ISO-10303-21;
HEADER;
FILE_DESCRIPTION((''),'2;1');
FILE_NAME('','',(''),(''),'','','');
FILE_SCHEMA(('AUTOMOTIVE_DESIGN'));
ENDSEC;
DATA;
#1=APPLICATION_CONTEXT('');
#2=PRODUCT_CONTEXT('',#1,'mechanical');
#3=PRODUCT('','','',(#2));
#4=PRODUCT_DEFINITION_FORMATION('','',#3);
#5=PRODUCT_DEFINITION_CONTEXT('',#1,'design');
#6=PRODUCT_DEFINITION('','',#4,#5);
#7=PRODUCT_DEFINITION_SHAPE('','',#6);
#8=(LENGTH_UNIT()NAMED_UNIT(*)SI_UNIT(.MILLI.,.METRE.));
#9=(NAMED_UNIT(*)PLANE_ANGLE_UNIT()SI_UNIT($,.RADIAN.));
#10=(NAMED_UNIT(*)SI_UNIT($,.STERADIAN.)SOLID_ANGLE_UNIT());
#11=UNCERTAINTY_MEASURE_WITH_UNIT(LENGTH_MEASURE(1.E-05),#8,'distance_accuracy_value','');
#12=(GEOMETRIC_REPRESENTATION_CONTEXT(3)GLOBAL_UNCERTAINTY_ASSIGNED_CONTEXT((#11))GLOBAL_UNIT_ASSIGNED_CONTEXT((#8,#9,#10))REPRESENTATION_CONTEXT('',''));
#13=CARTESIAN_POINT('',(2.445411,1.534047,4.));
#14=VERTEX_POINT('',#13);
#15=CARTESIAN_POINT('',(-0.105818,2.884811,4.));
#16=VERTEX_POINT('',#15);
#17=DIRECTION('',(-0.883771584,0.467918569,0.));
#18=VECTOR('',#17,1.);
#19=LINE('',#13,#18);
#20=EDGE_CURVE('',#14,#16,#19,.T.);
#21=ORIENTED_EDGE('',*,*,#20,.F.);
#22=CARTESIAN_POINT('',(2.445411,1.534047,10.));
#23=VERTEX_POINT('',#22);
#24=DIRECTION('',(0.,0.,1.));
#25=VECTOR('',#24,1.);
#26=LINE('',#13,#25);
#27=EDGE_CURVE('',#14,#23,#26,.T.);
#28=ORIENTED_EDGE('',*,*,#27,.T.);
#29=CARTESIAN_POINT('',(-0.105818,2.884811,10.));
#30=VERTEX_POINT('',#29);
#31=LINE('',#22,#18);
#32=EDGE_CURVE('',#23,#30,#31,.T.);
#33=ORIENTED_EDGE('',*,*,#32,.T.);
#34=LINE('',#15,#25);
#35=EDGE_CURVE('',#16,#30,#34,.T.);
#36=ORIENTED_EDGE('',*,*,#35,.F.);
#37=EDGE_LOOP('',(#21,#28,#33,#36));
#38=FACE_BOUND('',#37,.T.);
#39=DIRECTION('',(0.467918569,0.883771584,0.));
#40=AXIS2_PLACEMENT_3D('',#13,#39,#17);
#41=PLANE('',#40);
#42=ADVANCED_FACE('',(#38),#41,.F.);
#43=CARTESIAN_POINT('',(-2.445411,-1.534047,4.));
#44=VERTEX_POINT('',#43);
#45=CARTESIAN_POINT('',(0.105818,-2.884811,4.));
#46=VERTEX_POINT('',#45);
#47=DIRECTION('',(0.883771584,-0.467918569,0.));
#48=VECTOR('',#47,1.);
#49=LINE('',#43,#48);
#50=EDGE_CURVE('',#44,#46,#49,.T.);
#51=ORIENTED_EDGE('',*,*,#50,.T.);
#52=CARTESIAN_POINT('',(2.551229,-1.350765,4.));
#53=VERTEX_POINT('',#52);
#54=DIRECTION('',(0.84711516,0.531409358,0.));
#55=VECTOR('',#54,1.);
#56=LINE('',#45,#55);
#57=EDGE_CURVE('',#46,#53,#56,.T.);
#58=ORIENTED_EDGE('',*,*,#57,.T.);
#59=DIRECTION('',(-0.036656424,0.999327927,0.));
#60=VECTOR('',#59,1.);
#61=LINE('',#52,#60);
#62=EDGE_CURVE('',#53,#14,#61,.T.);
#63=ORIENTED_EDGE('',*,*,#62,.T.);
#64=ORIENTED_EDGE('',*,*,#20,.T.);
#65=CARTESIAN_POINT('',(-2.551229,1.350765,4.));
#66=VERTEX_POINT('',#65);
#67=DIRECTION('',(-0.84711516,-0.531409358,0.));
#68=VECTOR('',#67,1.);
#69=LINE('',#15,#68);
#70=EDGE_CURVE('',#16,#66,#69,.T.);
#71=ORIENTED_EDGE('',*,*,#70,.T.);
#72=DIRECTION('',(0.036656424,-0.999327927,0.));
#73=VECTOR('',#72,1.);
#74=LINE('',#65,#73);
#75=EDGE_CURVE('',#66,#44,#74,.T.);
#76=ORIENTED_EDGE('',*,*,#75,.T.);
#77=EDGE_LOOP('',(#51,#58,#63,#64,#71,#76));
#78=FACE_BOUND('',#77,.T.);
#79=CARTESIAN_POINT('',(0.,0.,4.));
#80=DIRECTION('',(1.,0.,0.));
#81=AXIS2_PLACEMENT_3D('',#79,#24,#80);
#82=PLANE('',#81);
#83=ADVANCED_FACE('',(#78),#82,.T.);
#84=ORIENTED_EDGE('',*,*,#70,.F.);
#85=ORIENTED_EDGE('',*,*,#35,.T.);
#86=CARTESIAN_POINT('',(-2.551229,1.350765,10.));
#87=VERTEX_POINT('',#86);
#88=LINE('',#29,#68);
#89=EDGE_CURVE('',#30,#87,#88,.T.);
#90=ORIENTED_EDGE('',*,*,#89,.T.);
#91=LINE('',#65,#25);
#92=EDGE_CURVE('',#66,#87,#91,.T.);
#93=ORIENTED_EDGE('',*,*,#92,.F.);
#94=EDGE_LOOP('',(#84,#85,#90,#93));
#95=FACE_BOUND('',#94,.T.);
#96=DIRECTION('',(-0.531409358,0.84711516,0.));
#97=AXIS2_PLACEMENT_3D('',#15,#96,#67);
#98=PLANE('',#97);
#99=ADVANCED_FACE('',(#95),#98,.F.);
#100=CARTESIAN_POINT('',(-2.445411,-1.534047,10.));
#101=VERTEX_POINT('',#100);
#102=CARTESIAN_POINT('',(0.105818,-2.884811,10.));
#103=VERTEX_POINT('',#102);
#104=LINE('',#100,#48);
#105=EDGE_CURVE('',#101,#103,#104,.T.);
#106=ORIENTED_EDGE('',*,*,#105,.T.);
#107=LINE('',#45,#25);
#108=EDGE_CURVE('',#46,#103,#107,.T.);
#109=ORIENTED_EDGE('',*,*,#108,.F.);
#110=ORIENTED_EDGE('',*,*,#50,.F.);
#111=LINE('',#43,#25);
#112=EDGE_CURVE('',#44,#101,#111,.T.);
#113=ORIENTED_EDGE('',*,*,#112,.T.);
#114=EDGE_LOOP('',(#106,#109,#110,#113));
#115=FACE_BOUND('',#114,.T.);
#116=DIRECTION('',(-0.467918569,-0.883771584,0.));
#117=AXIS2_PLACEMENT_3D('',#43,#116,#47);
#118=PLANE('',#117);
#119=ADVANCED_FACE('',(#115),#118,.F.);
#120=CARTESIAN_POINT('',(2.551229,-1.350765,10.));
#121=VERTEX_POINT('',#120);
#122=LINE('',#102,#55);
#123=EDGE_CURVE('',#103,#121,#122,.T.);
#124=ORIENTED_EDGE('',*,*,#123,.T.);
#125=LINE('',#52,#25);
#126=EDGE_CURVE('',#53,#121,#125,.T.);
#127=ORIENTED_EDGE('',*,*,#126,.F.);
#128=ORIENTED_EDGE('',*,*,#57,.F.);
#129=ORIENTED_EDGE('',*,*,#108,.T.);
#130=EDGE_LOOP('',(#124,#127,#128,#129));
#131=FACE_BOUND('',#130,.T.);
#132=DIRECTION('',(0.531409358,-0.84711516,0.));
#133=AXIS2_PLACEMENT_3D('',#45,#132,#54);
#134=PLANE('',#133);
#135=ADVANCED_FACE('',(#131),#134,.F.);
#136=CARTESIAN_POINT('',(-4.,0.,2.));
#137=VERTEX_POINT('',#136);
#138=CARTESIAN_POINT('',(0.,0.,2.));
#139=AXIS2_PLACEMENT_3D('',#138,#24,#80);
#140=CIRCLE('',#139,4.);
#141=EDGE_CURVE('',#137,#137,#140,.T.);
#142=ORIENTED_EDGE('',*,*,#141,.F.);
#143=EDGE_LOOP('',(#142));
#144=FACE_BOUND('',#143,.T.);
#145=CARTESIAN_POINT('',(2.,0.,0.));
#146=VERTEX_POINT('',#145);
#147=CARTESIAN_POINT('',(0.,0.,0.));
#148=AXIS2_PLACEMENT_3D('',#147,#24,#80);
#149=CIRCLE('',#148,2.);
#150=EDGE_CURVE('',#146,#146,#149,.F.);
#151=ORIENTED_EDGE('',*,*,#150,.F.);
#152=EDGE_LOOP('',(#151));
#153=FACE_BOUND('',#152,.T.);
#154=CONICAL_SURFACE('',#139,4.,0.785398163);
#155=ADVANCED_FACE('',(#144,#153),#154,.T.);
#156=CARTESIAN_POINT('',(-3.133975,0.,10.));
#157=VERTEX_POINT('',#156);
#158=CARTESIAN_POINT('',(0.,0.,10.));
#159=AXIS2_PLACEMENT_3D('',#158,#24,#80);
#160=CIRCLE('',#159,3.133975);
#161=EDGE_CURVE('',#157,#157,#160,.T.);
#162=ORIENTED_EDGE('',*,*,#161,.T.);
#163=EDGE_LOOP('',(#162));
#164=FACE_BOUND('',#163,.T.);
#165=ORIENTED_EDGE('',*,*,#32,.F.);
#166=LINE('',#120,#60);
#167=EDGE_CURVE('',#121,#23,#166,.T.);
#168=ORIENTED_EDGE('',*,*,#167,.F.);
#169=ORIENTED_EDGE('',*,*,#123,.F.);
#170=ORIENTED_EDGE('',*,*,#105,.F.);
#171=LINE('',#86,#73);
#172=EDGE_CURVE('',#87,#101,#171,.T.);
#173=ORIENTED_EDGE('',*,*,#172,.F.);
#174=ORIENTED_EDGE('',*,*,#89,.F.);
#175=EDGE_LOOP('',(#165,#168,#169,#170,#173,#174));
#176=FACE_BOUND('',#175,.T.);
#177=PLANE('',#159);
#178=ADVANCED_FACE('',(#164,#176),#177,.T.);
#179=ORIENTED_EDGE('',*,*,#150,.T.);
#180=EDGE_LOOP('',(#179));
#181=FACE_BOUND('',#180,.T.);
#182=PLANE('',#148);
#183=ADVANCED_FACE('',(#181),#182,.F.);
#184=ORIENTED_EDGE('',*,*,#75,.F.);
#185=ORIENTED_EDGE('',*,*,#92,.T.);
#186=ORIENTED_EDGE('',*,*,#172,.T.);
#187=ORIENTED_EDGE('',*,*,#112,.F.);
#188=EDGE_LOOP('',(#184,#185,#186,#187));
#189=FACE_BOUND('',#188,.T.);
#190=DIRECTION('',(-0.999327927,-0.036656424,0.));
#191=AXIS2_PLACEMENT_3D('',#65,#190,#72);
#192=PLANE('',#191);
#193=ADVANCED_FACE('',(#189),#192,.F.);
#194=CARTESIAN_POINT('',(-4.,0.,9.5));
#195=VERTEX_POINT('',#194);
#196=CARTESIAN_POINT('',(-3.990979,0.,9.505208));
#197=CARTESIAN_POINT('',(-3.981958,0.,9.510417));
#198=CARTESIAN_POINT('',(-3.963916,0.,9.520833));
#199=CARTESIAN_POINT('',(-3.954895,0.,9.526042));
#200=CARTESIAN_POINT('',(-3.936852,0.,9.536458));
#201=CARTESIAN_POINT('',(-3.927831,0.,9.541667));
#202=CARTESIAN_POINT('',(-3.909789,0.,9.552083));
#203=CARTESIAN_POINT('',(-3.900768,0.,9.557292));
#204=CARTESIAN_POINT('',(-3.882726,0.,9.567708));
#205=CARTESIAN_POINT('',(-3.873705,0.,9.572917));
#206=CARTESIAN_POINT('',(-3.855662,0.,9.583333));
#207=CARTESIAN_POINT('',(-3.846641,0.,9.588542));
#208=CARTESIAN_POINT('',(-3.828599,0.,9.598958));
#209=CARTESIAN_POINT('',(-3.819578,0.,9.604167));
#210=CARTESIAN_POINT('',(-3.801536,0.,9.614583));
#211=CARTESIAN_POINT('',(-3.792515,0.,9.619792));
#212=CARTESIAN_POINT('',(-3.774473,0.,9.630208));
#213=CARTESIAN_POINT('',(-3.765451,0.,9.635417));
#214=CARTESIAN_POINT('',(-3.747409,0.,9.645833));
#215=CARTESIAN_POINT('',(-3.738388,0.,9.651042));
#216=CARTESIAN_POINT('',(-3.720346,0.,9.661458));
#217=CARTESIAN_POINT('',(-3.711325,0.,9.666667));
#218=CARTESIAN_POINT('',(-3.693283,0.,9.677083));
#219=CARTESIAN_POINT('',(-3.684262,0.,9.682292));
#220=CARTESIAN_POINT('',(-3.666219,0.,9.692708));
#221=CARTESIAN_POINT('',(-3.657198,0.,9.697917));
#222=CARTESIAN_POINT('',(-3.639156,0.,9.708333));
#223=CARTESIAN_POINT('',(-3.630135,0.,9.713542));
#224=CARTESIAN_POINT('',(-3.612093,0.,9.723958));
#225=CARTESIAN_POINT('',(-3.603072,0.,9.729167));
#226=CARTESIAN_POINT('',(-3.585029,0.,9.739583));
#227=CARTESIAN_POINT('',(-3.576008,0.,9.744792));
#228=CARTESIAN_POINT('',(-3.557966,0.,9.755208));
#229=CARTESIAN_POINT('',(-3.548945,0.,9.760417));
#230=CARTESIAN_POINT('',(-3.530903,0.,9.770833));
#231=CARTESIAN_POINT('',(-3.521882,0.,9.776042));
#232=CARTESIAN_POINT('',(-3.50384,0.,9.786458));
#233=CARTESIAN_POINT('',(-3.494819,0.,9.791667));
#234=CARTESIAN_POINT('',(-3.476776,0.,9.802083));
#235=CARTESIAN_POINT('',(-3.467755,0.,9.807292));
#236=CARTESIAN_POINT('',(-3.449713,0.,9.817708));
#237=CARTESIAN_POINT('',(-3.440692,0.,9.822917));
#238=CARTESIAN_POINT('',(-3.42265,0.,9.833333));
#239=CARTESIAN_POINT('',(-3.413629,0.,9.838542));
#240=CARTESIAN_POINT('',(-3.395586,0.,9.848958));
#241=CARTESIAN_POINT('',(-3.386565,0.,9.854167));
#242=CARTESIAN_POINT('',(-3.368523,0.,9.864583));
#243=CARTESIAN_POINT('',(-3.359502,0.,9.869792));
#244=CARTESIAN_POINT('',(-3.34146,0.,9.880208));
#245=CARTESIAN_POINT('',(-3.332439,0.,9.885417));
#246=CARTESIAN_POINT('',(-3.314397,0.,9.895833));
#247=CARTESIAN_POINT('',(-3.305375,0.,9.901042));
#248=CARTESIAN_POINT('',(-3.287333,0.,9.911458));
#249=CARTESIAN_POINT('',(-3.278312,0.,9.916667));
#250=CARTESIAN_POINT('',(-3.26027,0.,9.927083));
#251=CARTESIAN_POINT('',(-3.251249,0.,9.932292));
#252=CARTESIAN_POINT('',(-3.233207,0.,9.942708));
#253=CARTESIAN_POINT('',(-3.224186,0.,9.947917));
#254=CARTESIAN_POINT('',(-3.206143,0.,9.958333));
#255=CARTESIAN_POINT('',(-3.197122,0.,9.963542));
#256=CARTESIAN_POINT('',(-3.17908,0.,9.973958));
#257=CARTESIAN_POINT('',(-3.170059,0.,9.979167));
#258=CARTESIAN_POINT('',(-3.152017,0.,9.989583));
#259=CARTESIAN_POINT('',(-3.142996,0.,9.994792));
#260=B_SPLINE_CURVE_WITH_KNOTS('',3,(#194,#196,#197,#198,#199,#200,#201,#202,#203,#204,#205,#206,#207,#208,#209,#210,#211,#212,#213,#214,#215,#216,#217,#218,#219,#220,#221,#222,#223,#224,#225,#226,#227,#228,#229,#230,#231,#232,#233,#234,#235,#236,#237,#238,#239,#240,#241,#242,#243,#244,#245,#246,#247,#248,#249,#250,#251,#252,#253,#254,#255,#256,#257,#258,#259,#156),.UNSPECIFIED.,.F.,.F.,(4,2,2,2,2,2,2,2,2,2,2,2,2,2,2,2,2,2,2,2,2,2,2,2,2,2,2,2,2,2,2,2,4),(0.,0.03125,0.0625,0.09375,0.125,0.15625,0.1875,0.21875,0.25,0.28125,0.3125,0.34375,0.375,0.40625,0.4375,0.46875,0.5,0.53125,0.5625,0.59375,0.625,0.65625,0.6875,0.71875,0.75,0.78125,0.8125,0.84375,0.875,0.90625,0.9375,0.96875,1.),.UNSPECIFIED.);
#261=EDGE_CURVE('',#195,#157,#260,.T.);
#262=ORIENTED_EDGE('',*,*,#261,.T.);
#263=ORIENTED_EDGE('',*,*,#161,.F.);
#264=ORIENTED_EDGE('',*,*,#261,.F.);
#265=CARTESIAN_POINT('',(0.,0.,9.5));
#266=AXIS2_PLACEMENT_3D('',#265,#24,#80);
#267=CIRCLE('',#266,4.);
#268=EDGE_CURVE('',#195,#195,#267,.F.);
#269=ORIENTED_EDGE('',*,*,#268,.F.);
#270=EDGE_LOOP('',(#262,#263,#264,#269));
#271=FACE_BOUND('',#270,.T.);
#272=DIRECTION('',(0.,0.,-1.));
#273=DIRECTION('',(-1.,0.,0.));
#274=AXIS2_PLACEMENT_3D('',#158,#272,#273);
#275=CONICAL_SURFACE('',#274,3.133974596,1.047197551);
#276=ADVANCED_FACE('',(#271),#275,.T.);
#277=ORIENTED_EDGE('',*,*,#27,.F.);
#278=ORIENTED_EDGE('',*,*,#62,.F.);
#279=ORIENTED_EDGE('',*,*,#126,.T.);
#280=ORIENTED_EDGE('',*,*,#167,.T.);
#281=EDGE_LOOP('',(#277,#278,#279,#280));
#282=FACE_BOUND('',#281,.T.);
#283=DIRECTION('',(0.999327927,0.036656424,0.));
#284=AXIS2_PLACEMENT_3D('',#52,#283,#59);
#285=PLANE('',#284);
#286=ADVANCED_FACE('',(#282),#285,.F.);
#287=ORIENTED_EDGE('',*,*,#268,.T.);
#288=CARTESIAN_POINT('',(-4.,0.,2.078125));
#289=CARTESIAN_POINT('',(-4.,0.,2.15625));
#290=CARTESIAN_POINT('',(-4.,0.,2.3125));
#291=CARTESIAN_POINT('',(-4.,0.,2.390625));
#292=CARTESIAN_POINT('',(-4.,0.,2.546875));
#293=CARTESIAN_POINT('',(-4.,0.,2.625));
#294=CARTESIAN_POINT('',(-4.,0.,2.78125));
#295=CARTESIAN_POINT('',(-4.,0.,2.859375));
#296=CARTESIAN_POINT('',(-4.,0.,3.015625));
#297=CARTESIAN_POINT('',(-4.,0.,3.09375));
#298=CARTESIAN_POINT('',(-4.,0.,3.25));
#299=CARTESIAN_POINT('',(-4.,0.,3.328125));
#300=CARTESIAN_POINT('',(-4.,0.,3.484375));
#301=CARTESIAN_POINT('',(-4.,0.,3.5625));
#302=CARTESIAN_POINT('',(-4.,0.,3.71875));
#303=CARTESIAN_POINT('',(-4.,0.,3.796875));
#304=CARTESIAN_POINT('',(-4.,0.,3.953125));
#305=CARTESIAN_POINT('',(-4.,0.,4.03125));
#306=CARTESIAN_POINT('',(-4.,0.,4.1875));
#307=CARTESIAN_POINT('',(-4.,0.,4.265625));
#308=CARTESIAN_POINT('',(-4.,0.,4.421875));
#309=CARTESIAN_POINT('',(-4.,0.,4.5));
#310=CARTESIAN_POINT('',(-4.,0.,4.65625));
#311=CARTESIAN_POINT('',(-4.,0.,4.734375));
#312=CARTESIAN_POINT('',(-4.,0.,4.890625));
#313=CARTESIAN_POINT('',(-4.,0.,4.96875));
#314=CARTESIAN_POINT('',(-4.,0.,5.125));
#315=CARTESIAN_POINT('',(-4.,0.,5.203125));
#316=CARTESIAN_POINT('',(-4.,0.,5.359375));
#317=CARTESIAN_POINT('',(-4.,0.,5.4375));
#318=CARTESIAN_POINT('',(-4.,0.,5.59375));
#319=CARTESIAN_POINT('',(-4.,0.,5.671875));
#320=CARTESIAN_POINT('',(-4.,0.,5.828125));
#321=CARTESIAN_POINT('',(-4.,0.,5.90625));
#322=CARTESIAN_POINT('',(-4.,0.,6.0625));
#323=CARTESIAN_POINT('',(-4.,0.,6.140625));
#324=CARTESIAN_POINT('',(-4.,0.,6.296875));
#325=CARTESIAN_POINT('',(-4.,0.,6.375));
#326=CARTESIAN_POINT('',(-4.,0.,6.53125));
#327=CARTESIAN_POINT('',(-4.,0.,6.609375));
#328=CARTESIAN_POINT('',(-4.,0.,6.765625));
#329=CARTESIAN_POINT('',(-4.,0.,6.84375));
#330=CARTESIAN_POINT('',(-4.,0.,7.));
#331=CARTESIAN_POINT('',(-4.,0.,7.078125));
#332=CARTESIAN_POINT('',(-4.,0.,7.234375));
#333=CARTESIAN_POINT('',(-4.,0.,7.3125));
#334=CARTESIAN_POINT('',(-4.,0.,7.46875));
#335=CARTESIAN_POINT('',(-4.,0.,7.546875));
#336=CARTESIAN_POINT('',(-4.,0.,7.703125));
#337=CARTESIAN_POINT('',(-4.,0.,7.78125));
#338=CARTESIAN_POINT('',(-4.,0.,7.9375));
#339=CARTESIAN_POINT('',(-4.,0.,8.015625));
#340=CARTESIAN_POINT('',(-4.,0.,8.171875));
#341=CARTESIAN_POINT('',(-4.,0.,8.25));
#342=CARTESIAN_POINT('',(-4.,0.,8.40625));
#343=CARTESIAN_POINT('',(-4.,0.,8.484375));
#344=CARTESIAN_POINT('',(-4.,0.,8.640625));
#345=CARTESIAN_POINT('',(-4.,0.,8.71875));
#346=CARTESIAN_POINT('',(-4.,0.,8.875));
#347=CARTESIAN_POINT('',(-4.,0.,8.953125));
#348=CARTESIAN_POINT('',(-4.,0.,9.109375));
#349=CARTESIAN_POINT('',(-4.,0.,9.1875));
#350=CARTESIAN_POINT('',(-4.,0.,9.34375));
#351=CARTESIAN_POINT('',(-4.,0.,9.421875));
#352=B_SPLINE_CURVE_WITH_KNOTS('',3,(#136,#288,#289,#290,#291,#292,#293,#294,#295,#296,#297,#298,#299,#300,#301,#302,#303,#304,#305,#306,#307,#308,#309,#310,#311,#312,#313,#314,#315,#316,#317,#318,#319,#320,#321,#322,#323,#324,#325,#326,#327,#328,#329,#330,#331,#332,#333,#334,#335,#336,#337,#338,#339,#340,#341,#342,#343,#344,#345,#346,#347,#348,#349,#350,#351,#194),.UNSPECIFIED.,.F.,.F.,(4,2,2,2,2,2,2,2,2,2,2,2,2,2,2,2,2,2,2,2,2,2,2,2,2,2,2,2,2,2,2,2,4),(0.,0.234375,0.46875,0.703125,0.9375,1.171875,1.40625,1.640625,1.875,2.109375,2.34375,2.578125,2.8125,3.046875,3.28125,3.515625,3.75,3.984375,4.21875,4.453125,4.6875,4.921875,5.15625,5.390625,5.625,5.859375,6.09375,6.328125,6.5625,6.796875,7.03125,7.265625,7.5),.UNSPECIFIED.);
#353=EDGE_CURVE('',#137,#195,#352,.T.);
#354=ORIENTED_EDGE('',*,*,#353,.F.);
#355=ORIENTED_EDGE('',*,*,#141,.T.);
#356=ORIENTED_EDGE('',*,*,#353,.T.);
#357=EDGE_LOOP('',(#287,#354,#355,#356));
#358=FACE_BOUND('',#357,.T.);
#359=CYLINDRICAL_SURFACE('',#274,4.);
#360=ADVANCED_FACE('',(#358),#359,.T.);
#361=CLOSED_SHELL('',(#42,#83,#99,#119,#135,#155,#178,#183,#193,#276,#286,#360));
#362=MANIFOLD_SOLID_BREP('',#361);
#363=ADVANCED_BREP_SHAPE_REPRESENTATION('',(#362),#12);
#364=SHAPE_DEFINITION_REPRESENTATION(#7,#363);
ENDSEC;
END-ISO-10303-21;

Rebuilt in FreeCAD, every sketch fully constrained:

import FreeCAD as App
import Part
import Sketcher

V = App.Vector
Q = App.Units.Quantity


def edges_at(feature, points):
    """Names of the edges that pass closest to the given points."""
    edges = feature.Shape.Edges
    near = lambda p: min(range(len(edges)), key=lambda i: edges[i].distToShape(Part.Vertex(*p))[0])
    return sorted({f"Edge{near(p) + 1}" for p in points})

doc = App.newDocument("Part")
body = doc.addObject("PartDesign::Body", "Body")

# Sketch on XY plane
sketch1 = body.newObject("Sketcher::SketchObject", "Sketch")
sketch1.AttachmentSupport = (doc.getObject("XY_Plane"), [""])
sketch1.MapMode = "FlatFace"
sketch1.addGeometry(Part.Circle(V(0, 0, 0), V(0, 0, 1), 4), False)
sketch1.addConstraint([
    Sketcher.Constraint("Coincident", 0, 3, -1, 1),
    Sketcher.Constraint("Diameter", 0, Q("8 mm")),
])
pad1 = body.newObject("PartDesign::Pad", "Pad")
pad1.Profile = sketch1
pad1.Length = 10

# Sketch on XY plane
sketch2 = body.newObject("Sketcher::SketchObject", "Sketch001")
sketch2.AttachmentSupport = (doc.getObject("XY_Plane"), [""])
sketch2.MapMode = "FlatFace"
sketch2.AttachmentOffset = App.Placement(V(0, 0, 10), App.Rotation())
sketch2.addGeometry([
    Part.LineSegment(V(-0.105818, 2.884811, 0), V(-2.551229, 1.350765, 0)),  # 0
    Part.LineSegment(V(-2.551229, 1.350765, 0), V(-2.445411, -1.534047, 0)),  # 1
    Part.LineSegment(V(-2.445411, -1.534047, 0), V(0.105818, -2.884811, 0)),  # 2
    Part.LineSegment(V(0.105818, -2.884811, 0), V(2.551229, -1.350765, 0)),  # 3
    Part.LineSegment(V(2.551229, -1.350765, 0), V(2.445411, 1.534047, 0)),  # 4
    Part.LineSegment(V(2.445411, 1.534047, 0), V(-0.105818, 2.884811, 0)),  # 5
], False)
sketch2.addConstraint([
    Sketcher.Constraint("Coincident", 0, 2, 1, 1),
    Sketcher.Constraint("Coincident", 1, 2, 2, 1),
    Sketcher.Constraint("Coincident", 2, 2, 3, 1),
    Sketcher.Constraint("Coincident", 3, 2, 4, 1),
    Sketcher.Constraint("Coincident", 4, 2, 5, 1),
    Sketcher.Constraint("Coincident", 5, 2, 0, 1),
    Sketcher.Constraint("Symmetric", 0, 2, 3, 2, -1, 1),
    Sketcher.Constraint("Symmetric", 1, 2, 4, 2, -1, 1),
    Sketcher.Constraint("Symmetric", 2, 2, 5, 2, -1, 1),
    Sketcher.Constraint("Equal", 0, 1),
    Sketcher.Constraint("Equal", 1, 2),
    Sketcher.Constraint("Distance", 0, Q("2.886751 mm")),
    Sketcher.Constraint("DistanceX", 0, 2, -1, 1, Q("2.551229 mm")),
    Sketcher.Constraint("DistanceX", 1, 2, -1, 1, Q("2.445411 mm")),
    Sketcher.Constraint("DistanceY", 2, 2, -1, 1, Q("2.884811 mm")),
])
pocket1 = body.newObject("PartDesign::Pocket", "Pocket")
pocket1.Profile = sketch2
pocket1.Length = 6
doc.recompute()

chamfer = body.newObject("PartDesign::Chamfer", "Chamfer")
chamfer.Base = (pocket1, edges_at(pocket1, [(-4, 0, 10)]))
chamfer.ChamferType = "Two distances"
chamfer.Size = 0.5
chamfer.Size2 = 0.866025
doc.recompute()

chamfer2 = body.newObject("PartDesign::Chamfer", "Chamfer001")
chamfer2.Base = (chamfer, edges_at(chamfer, [(-4, 0, 0)]))
chamfer2.Size = 2

doc.recompute()
